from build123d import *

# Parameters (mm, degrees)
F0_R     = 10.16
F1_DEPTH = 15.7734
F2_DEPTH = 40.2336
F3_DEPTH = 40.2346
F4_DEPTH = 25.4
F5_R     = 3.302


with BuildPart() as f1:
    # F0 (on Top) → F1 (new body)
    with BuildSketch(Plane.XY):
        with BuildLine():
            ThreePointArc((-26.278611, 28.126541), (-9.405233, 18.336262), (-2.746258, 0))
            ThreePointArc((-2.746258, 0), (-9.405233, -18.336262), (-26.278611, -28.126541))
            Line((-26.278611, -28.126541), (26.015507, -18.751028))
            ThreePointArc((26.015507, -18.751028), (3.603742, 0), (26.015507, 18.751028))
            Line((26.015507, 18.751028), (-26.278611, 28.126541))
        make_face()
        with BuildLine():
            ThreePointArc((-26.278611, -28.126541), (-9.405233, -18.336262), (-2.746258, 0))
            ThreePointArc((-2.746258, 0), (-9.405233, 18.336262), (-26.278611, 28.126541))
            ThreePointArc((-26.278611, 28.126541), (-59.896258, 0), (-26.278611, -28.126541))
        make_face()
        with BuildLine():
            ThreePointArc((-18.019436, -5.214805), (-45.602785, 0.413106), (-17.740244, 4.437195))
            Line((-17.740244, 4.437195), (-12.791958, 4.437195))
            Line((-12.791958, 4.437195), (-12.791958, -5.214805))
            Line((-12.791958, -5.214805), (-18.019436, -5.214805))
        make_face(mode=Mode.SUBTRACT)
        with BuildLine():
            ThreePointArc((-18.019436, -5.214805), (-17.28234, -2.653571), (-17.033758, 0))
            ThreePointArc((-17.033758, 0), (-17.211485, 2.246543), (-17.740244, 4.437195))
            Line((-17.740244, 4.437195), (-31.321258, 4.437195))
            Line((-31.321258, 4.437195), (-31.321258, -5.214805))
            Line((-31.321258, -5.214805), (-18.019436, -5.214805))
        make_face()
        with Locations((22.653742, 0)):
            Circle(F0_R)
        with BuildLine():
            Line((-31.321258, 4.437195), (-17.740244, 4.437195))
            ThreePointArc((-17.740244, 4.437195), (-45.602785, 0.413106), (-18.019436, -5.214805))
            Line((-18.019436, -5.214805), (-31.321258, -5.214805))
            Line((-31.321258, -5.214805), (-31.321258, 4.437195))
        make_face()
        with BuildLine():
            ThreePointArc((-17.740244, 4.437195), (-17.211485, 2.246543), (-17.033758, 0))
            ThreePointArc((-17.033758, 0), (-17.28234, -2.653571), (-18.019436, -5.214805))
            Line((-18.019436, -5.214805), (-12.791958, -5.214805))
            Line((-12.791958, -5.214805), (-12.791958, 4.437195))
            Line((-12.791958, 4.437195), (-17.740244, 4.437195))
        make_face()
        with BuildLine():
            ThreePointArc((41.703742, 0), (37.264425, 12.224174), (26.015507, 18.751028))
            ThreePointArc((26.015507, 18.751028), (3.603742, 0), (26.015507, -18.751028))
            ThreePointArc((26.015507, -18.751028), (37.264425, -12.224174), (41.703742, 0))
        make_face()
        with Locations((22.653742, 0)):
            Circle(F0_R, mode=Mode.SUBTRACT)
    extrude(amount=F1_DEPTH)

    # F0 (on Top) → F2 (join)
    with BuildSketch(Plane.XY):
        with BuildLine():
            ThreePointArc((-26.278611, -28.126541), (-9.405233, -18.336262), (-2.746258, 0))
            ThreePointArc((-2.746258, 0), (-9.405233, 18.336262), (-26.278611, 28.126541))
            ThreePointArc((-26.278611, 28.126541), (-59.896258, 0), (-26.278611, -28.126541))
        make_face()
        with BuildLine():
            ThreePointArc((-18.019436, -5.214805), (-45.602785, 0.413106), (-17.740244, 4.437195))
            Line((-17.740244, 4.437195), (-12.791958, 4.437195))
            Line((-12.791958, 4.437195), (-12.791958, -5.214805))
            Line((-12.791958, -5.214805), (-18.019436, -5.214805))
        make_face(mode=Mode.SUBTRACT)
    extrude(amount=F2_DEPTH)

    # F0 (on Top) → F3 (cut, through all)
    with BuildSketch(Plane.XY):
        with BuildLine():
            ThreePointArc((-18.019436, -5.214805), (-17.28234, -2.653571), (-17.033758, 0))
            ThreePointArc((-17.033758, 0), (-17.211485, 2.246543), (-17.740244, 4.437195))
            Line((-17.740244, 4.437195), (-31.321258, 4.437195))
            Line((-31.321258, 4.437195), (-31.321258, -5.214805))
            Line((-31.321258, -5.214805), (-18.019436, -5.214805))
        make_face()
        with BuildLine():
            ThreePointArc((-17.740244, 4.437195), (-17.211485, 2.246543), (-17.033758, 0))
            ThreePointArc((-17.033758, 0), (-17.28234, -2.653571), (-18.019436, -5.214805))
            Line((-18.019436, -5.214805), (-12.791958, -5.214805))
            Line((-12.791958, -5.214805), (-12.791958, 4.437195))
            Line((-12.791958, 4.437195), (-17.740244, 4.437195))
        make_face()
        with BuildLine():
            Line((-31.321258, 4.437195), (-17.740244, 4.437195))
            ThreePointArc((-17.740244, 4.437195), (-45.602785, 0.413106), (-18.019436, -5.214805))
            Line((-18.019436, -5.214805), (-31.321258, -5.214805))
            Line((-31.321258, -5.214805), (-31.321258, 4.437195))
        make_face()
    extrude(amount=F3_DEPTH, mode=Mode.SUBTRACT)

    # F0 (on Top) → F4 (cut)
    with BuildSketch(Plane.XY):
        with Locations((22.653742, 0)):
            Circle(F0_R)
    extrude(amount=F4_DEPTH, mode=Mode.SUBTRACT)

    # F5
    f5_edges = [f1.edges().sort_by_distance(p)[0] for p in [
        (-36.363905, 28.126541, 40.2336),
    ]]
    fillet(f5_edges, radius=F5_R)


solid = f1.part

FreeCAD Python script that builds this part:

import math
import FreeCAD as App
import Part
import Sketcher
Q = App.Units.Quantity


def edges_at(feature, points):
    """Names of the edges that pass closest to the given points."""
    edges = feature.Shape.Edges
    near = lambda p: min(range(len(edges)), key=lambda i: edges[i].distToShape(Part.Vertex(*p))[0])
    return sorted({f"Edge{near(p) + 1}" for p in points})

doc = App.newDocument("Part")
body = doc.addObject("PartDesign::Body", "Body")

sketch1 = body.newObject("Sketcher::SketchObject", "Sketch")
sketch1.AttachmentSupport = (doc.getObject("XY_Plane"), [""])
sketch1.MapMode = "FlatFace"
sketch1.addGeometry(Part.LineSegment(App.Vector(-26, -28, 0), App.Vector(26, -19, 0)), False)
sketch1.addGeometry(Part.ArcOfCircle(Part.Circle(App.Vector(23, 0, 0), App.Vector(0, 0, 1), 19), math.radians(-80), math.radians(0)), False)
sketch1.addGeometry(Part.ArcOfCircle(Part.Circle(App.Vector(23, 0, 0), App.Vector(0, 0, 1), 19), math.radians(0), math.radians(80)), False)
sketch1.addGeometry(Part.LineSegment(App.Vector(26, 19, 0), App.Vector(-26, 28, 0)), False)
sketch1.addGeometry(Part.ArcOfCircle(Part.Circle(App.Vector(-31, 0, 0), App.Vector(0, 0, 1), 29), math.radians(80), math.radians(280)), False)
sketch1.addGeometry(Part.Circle(App.Vector(23, 0, 0), App.Vector(0, 0, 1), 10), False)
sketch1.addConstraint(Sketcher.Constraint("Tangent", 0, 2, 1, 1))
sketch1.addConstraint(Sketcher.Constraint("Tangent", 1, 2, 2, 1))
sketch1.addConstraint(Sketcher.Constraint("Tangent", 2, 2, 3, 1))
sketch1.addConstraint(Sketcher.Constraint("Tangent", 3, 2, 4, 1))
sketch1.addConstraint(Sketcher.Constraint("Tangent", 4, 2, 0, 1))
sketch1.addConstraint(Sketcher.Constraint("Coincident", 5, 3, 1, 3))
sketch1.addConstraint(Sketcher.Constraint("Equal", 1, 2))
sketch1.addConstraint(Sketcher.Constraint("Symmetric", 0, 2, 2, 2, -1))
sketch1.addConstraint(Sketcher.Constraint("PointOnObject", 1, 2, -1))
sketch1.addConstraint(Sketcher.Constraint("Diameter", 5, Q("0.8 in")))
sketch1.addConstraint(Sketcher.Constraint("Radius", 1, Q("0.7500001 in")))
sketch1.addConstraint(Sketcher.Constraint("Radius", 4, Q("1.125 in")))
sketch1.addConstraint(Sketcher.Constraint("DistanceX", 4, 3, 1, 3, Q("2.1249999 in")))
sketch1.addConstraint(Sketcher.Constraint("DistanceX", -1, 1, 1, 3, Q("22.65374 mm")))
pad1 = body.newObject("PartDesign::Pad", "Pad")
pad1.Profile = sketch1
pad1.Length = Q("0.621 in")

sketch2 = body.newObject("Sketcher::SketchObject", "Sketch001")
sketch2.AttachmentSupport = (doc.getObject("XY_Plane"), [""])
sketch2.MapMode = "FlatFace"
sketch2.addGeometry(Part.ArcOfCircle(Part.Circle(App.Vector(-31.3, 0, 0), App.Vector(0, 0, 1), 28.6), math.radians(-80), math.radians(0)), False)
sketch2.addGeometry(Part.ArcOfCircle(Part.Circle(App.Vector(-31.3, 0, 0), App.Vector(0, 0, 1), 28.6), math.radians(0), math.radians(80)), False)
sketch2.addGeometry(Part.ArcOfCircle(Part.Circle(App.Vector(-31.3, 0, 0), App.Vector(0, 0, 1), 28.6), math.radians(80), math.radians(280)), False)
sketch2.addGeometry(Part.LineSegment(App.Vector(-12.8, -5.2, 0), App.Vector(-18, -5.2, 0)), False)
sketch2.addGeometry(Part.ArcOfCircle(Part.Circle(App.Vector(-31.3, 0, 0), App.Vector(0, 0, 1), 14.3), math.radians(18), math.radians(339)), False)
sketch2.addGeometry(Part.LineSegment(App.Vector(-17.7, 4.4, 0), App.Vector(-12.8, 4.4, 0)), False)
sketch2.addGeometry(Part.LineSegment(App.Vector(-12.8, 4.4, 0), App.Vector(-12.8, -5.2, 0)), False)
sketch2.addConstraint(Sketcher.Constraint("Tangent", 0, 2, 1, 1))
sketch2.addConstraint(Sketcher.Constraint("Tangent", 1, 2, 2, 1))
sketch2.addConstraint(Sketcher.Constraint("Tangent", 2, 2, 0, 1))
sketch2.addConstraint(Sketcher.Constraint("Coincident", 3, 2, 4, 2))
sketch2.addConstraint(Sketcher.Constraint("Coincident", 4, 1, 5, 1))
sketch2.addConstraint(Sketcher.Constraint("Coincident", 5, 2, 6, 1))
sketch2.addConstraint(Sketcher.Constraint("Coincident", 6, 2, 3, 1))
sketch2.addConstraint(Sketcher.Constraint("Horizontal", 3))
sketch2.addConstraint(Sketcher.Constraint("Horizontal", 5))
sketch2.addConstraint(Sketcher.Constraint("Vertical", 6))
sketch2.addConstraint(Sketcher.Constraint("Coincident", 4, 3, 0, 3))
sketch2.addConstraint(Sketcher.Constraint("Symmetric", 1, 2, 2, 2, -1))
sketch2.addConstraint(Sketcher.Constraint("PointOnObject", 0, 2, -1))
sketch2.addConstraint(Sketcher.Constraint("Radius", 0, Q("1.1249999 in")))
sketch2.addConstraint(Sketcher.Constraint("Radius", 4, Q("0.5625 in")))
sketch2.addConstraint(Sketcher.Constraint("DistanceY", 6, 2, 6, 1, Q("0.38 in")))
sketch2.addConstraint(Sketcher.Constraint("DistanceX", 5, 2, 0, 2, Q("0.3955 in")))
sketch2.addConstraint(Sketcher.Constraint("DistanceX", 3, 2, 3, 1, Q("5.227478 mm")))
sketch2.addConstraint(Sketcher.Constraint("DistanceX", 2, 3, -1, 1, Q("31.321258 mm")))
sketch2.addConstraint(Sketcher.Constraint("DistanceX", 1, 2, -1, 1, Q("26.278611 mm")))
pad2 = body.newObject("PartDesign::Pad", "Pad001")
pad2.Profile = sketch2
pad2.Length = Q("1.584 in")

sketch3 = body.newObject("Sketcher::SketchObject", "Sketch002")
sketch3.AttachmentSupport = (doc.getObject("XY_Plane"), [""])
sketch3.MapMode = "FlatFace"
sketch3.addGeometry(Part.LineSegment(App.Vector(-18, -5.2, 0), App.Vector(-12.8, -5.2, 0)), False)
sketch3.addGeometry(Part.LineSegment(App.Vector(-12.8, -5.2, 0), App.Vector(-12.8, 4.4, 0)), False)
sketch3.addGeometry(Part.LineSegment(App.Vector(-12.8, 4.4, 0), App.Vector(-17.7, 4.4, 0)), False)
sketch3.addGeometry(Part.ArcOfCircle(Part.Circle(App.Vector(-31.3, 0, 0), App.Vector(0, 0, 1), 14.3), math.radians(18), math.radians(339)), False)
sketch3.addConstraint(Sketcher.Constraint("Coincident", 0, 2, 1, 1))
sketch3.addConstraint(Sketcher.Constraint("Coincident", 1, 2, 2, 1))
sketch3.addConstraint(Sketcher.Constraint("Coincident", 2, 2, 3, 1))
sketch3.addConstraint(Sketcher.Constraint("Coincident", 3, 2, 0, 1))
sketch3.addConstraint(Sketcher.Constraint("Horizontal", 0))
sketch3.addConstraint(Sketcher.Constraint("Vertical", 1))
sketch3.addConstraint(Sketcher.Constraint("Horizontal", 2))
sketch3.addConstraint(Sketcher.Constraint("PointOnObject", 3, 3, -1))
sketch3.addConstraint(Sketcher.Constraint("Radius", 3, Q("0.5625 in")))
sketch3.addConstraint(Sketcher.Constraint("DistanceY", 1, 1, 1, 2, Q("0.38 in")))
sketch3.addConstraint(Sketcher.Constraint("DistanceX", 3, 3, 0, 2, Q("0.7295 in")))
sketch3.addConstraint(Sketcher.Constraint("DistanceX", 0, 1, 0, 2, Q("5.227478 mm")))
sketch3.addConstraint(Sketcher.Constraint("DistanceX", 3, 3, -1, 1, Q("31.321258 mm")))
pocket1 = body.newObject("PartDesign::Pocket", "Pocket")
pocket1.Profile = sketch3
pocket1.Type = "ThroughAll"
pocket1.Reversed = True

sketch4 = body.newObject("Sketcher::SketchObject", "Sketch003")
sketch4.AttachmentSupport = (doc.getObject("XY_Plane"), [""])
sketch4.MapMode = "FlatFace"
sketch4.addGeometry(Part.Circle(App.Vector(23, 0, 0), App.Vector(0, 0, 1), 10), False)
sketch4.addConstraint(Sketcher.Constraint("PointOnObject", 0, 3, -1))
sketch4.addConstraint(Sketcher.Constraint("Diameter", 0, Q("0.8 in")))
sketch4.addConstraint(Sketcher.Constraint("DistanceX", -1, 1, 0, 3, Q("22.653742 mm")))
pocket2 = body.newObject("PartDesign::Pocket", "Pocket001")
pocket2.Profile = sketch4
pocket2.Length = Q("1 in")
pocket2.Reversed = True
doc.recompute()

fillet = body.newObject("PartDesign::Fillet", "Fillet")
fillet.Base = (pocket2, edges_at(pocket2, [(-59.896, 0, 40.234)]))
fillet.Radius = Q("0.13 in")

doc.recompute()
